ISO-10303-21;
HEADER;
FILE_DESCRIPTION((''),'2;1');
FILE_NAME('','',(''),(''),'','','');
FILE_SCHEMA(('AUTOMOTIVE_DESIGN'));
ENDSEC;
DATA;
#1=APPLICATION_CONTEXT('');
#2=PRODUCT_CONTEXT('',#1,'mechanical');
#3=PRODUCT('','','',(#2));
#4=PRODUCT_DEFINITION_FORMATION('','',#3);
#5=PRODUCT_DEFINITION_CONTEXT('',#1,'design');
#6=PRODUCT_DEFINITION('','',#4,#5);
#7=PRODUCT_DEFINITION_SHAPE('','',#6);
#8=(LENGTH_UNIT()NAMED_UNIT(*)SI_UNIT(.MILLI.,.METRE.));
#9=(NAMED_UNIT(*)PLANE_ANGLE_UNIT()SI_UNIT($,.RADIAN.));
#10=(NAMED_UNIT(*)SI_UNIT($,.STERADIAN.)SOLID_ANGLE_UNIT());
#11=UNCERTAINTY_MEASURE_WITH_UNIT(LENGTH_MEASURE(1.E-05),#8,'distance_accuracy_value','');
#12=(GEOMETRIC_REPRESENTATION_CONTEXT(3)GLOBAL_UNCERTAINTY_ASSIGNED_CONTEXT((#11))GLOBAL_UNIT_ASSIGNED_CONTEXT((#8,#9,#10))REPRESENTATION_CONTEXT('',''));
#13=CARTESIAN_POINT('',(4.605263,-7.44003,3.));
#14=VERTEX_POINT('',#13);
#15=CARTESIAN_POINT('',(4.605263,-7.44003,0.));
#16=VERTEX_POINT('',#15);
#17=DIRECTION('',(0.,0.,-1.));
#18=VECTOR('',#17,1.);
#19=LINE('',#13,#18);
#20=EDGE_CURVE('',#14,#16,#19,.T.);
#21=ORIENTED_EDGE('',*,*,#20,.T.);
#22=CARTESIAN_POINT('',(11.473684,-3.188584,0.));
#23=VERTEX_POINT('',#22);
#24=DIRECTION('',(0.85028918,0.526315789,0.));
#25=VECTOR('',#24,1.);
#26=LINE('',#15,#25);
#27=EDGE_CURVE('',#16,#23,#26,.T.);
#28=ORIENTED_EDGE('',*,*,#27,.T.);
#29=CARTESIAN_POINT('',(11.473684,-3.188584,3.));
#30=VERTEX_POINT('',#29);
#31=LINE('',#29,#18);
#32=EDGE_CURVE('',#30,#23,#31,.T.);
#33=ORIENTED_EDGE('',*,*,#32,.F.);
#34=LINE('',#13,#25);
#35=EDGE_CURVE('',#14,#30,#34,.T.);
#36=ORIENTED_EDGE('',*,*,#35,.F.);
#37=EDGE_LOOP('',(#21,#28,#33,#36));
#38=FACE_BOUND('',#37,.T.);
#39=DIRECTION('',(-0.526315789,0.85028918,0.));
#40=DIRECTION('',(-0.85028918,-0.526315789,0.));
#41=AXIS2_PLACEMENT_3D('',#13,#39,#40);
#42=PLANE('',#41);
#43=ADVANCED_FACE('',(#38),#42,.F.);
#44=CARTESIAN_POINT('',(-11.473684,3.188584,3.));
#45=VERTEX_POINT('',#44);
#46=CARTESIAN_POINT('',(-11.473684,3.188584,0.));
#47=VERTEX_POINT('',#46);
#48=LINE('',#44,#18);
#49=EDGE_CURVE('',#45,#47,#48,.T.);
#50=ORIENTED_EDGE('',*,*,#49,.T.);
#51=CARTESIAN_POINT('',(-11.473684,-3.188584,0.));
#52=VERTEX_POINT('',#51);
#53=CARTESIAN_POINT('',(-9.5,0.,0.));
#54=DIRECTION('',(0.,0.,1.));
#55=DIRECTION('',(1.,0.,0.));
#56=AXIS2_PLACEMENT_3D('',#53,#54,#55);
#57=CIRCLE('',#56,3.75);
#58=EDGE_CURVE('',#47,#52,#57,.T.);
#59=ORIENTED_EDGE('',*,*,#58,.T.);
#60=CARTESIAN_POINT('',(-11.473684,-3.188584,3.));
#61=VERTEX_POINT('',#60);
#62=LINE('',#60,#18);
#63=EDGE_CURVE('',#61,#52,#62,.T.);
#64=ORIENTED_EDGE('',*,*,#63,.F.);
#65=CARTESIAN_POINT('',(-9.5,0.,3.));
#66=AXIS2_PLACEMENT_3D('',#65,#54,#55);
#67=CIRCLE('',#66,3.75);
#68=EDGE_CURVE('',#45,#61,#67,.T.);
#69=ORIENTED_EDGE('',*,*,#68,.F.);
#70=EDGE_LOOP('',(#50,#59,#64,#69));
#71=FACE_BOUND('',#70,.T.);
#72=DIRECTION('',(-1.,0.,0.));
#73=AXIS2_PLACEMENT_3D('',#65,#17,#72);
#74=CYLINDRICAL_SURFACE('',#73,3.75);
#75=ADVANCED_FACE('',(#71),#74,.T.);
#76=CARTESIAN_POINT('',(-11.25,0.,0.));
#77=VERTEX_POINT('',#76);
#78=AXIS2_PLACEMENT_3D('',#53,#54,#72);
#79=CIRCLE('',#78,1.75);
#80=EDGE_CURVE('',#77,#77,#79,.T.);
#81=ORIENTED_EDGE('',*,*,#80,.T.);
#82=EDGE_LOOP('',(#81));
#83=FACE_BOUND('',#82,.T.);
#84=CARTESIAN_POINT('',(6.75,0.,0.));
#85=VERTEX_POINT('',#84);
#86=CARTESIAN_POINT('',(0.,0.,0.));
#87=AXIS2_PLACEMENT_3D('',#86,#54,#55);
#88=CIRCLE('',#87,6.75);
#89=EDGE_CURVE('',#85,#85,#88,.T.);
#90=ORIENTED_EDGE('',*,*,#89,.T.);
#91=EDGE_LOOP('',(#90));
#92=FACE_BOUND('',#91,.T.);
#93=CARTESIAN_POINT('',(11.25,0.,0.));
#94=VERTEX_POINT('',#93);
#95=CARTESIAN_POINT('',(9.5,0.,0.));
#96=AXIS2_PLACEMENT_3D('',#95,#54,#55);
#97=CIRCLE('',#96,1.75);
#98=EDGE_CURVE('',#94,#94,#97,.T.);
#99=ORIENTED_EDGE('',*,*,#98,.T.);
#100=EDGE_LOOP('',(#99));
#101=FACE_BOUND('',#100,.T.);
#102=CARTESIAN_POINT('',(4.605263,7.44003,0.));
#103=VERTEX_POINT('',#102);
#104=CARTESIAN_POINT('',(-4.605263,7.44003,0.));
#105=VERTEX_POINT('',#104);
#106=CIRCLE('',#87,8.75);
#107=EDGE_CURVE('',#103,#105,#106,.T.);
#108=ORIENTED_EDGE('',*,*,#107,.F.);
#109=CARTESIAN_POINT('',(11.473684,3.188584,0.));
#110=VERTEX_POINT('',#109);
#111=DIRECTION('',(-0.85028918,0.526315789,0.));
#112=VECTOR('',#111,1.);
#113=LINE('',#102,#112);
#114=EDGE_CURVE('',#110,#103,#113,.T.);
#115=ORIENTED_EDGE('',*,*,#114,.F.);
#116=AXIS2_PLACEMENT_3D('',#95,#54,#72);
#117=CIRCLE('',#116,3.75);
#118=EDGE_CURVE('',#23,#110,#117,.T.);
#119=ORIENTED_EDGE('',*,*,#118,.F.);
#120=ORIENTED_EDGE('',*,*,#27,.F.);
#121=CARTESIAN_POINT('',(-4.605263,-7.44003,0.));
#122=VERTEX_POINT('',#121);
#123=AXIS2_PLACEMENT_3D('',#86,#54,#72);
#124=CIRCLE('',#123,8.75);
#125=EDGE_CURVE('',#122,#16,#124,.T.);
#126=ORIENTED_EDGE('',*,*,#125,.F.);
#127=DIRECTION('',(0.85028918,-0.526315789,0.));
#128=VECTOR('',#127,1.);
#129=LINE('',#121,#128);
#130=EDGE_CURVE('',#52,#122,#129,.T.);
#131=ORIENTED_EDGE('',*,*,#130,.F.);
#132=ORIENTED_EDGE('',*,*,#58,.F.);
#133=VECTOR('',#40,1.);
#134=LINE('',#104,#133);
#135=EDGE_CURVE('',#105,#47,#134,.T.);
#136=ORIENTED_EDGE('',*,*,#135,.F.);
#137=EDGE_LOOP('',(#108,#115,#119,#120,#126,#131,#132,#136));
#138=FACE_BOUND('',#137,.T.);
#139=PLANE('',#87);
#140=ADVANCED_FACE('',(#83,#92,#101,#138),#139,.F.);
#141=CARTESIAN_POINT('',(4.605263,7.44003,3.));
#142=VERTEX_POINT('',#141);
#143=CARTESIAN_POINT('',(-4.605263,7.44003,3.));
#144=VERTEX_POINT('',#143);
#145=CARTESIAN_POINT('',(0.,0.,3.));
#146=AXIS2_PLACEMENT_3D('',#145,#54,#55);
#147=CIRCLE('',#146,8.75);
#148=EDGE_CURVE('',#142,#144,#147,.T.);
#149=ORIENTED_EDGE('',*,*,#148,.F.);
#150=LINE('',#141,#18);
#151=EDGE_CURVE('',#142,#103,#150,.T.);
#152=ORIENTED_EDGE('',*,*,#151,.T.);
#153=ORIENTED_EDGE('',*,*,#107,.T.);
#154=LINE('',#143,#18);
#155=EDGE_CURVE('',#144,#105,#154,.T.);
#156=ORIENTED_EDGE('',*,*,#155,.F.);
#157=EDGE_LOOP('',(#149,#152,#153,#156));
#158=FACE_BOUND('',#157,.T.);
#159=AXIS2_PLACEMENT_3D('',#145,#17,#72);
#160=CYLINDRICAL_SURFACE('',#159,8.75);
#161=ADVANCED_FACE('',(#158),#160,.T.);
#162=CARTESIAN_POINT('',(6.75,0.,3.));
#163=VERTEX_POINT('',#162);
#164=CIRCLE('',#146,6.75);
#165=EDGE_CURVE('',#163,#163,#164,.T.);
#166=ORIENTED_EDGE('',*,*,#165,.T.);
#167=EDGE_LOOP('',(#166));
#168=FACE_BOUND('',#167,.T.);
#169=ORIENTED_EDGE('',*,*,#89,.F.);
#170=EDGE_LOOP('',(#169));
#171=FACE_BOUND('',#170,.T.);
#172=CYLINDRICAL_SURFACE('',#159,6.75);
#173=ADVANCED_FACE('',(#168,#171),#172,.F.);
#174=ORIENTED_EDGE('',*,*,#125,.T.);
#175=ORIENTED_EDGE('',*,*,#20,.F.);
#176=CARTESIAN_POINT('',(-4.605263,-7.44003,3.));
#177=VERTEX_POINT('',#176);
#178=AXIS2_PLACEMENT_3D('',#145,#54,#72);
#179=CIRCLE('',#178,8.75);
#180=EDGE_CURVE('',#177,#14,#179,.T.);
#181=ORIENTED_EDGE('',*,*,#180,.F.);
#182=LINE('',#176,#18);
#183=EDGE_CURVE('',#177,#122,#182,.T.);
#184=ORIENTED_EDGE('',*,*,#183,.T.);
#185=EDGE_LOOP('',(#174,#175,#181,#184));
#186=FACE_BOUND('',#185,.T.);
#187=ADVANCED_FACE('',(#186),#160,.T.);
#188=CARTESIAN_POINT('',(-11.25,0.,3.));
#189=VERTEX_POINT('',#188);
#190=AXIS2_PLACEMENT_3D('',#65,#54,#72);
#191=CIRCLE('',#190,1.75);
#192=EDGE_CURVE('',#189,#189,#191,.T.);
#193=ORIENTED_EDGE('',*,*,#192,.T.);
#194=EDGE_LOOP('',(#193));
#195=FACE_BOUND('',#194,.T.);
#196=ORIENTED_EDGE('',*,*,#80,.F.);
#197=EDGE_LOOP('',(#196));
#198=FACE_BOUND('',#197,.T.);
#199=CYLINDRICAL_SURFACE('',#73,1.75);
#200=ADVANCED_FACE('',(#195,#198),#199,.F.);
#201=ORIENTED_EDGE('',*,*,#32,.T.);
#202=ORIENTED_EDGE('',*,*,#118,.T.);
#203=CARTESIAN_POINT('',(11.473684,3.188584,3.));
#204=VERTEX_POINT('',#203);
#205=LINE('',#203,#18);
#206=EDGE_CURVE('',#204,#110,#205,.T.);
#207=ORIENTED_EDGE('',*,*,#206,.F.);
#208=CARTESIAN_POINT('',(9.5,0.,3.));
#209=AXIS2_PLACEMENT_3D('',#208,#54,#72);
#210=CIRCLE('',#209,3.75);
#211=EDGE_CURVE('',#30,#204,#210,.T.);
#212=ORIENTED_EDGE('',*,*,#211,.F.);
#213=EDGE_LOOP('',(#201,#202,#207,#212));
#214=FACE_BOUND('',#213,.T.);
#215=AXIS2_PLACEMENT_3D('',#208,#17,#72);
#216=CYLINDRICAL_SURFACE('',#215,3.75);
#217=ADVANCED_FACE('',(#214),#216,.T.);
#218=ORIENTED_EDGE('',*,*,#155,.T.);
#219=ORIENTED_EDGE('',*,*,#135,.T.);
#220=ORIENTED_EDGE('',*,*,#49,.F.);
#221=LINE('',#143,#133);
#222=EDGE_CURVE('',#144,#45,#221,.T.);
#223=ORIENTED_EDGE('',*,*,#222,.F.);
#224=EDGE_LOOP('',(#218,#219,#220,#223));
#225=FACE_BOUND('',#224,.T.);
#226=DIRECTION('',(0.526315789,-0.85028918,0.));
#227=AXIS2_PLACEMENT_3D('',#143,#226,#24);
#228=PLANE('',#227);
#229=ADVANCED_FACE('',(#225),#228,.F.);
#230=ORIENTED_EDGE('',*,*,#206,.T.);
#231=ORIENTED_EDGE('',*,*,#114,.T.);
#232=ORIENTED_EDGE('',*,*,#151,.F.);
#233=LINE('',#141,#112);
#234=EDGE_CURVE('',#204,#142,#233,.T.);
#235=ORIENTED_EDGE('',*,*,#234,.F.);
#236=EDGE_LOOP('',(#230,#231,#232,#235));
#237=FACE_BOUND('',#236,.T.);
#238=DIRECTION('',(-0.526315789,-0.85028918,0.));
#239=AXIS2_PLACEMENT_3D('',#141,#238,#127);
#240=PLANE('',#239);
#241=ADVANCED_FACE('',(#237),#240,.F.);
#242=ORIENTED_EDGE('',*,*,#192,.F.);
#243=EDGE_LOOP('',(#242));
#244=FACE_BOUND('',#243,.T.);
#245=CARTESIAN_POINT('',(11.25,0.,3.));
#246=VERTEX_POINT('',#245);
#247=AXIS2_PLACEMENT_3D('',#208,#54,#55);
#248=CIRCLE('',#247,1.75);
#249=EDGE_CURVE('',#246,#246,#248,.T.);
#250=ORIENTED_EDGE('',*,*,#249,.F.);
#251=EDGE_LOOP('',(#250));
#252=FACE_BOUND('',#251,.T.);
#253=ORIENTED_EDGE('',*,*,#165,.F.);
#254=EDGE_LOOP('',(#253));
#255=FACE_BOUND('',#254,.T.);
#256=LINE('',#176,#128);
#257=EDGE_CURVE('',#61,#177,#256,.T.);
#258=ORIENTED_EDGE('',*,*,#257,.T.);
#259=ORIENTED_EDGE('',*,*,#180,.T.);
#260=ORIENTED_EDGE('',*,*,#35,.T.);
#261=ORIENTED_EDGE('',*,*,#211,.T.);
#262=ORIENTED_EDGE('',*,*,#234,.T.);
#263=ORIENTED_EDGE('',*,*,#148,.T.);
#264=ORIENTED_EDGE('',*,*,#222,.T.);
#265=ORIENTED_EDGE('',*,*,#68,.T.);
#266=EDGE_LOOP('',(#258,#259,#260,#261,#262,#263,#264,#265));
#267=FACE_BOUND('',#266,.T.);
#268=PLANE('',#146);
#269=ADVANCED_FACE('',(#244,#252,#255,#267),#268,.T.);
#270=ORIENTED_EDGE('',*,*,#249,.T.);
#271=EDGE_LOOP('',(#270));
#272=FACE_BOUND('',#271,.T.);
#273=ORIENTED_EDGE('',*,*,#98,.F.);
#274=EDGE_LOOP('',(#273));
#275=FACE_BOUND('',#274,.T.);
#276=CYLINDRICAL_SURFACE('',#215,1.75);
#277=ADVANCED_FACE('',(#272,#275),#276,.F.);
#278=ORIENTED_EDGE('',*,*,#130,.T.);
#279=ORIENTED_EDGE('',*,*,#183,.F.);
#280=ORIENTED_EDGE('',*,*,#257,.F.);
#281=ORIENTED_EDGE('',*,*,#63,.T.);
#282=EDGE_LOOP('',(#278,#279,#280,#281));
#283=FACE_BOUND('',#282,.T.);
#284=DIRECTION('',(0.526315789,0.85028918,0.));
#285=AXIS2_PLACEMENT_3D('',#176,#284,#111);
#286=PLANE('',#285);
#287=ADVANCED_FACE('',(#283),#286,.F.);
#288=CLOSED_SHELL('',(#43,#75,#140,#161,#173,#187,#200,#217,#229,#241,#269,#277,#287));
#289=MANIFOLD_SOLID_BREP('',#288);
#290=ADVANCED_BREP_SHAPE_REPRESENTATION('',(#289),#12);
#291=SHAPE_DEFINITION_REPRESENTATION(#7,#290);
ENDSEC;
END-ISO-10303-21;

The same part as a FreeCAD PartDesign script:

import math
import FreeCAD as App
import Part
import Sketcher

doc = App.newDocument("Part")
body = doc.addObject("PartDesign::Body", "Body")

# Sketch on XY plane
sketch1 = doc.addObject("Sketcher::SketchObject", "Sketch")
body.addObject(sketch1)
sketch1.AttachmentSupport = (doc.XY_Plane, [""])
sketch1.MapMode = "FlatFace"
sketch1.addGeometry([
    Part.LineSegment(App.Vector(11.5, 3.2, 0), App.Vector(4.6, 7.4, 0)),  # 0
    Part.ArcOfCircle(Part.Circle(App.Vector(0, 0, 0), App.Vector(0, 0, 1), 8.8), math.radians(58), math.radians(122)),  # 1
    Part.LineSegment(App.Vector(-4.6, 7.4, 0), App.Vector(-11.5, 3.2, 0)),  # 2
    Part.ArcOfCircle(Part.Circle(App.Vector(-9.5, 0, 0), App.Vector(0, 0, 1), 3.8), math.radians(122), math.radians(238)),  # 3
    Part.LineSegment(App.Vector(-11.5, -3.2, 0), App.Vector(-4.6, -7.4, 0)),  # 4
    Part.ArcOfCircle(Part.Circle(App.Vector(0, 0, 0), App.Vector(0, 0, 1), 8.8), math.radians(-122), math.radians(-58)),  # 5
    Part.LineSegment(App.Vector(4.6, -7.4, 0), App.Vector(11.5, -3.2, 0)),  # 6
    Part.ArcOfCircle(Part.Circle(App.Vector(9.5, 0, 0), App.Vector(0, 0, 1), 3.8), math.radians(-58), math.radians(58)),  # 7
    Part.Circle(App.Vector(9.5, 0, 0), App.Vector(0, 0, 1), 1.8),  # 8
    Part.Circle(App.Vector(0, 0, 0), App.Vector(0, 0, 1), 6.8),  # 9
    Part.Circle(App.Vector(-9.5, 0, 0), App.Vector(0, 0, 1), 1.8),  # 10
], False)
sketch1.addConstraint([
    Sketcher.Constraint("Tangent", 0, 2, 1, 1),
    Sketcher.Constraint("Tangent", 1, 2, 2, 1),
    Sketcher.Constraint("Tangent", 2, 2, 3, 1),
    Sketcher.Constraint("Tangent", 3, 2, 4, 1),
    Sketcher.Constraint("Tangent", 4, 2, 5, 1),
    Sketcher.Constraint("Tangent", 5, 2, 6, 1),
    Sketcher.Constraint("Tangent", 6, 2, 7, 1),
    Sketcher.Constraint("Tangent", 7, 2, 0, 1),
    Sketcher.Constraint("Coincident", 1, 3, -1, 1),
    Sketcher.Constraint("Coincident", 5, 3, -1, 1),
    Sketcher.Constraint("Coincident", 9, 3, -1, 1),
    Sketcher.Constraint("Coincident", 8, 3, 7, 3),
    Sketcher.Constraint("Coincident", 10, 3, 3, 3),
    Sketcher.Constraint("Equal", 1, 5),
    Sketcher.Constraint("Equal", 3, 7),
    Sketcher.Constraint("Equal", 8, 10),
    Sketcher.Constraint("Symmetric", 3, 3, 7, 3, -1, 1),
    Sketcher.Constraint("PointOnObject", 3, 3, -1),
    Sketcher.Constraint("Diameter", 8, 3.5),
    Sketcher.Constraint("Diameter", 9, 13.5),
    Sketcher.Constraint("Radius", 1, 8.75),
    Sketcher.Constraint("Radius", 3, 3.75),
    Sketcher.Constraint("DistanceX", 3, 3, 7, 3, 19.0),
])
pad1 = doc.addObject("PartDesign::Pad", "Pad")
body.addObject(pad1)
pad1.Profile = sketch1
pad1.Length = 3

doc.recompute()
